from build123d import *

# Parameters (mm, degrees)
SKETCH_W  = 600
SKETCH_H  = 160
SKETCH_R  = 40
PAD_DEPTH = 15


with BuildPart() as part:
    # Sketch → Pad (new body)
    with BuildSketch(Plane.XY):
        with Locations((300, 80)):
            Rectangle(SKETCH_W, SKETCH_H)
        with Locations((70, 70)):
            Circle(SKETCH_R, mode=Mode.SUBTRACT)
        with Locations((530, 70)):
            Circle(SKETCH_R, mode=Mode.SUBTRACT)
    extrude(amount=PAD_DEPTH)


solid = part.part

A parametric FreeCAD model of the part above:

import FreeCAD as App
import Part
import Sketcher
from FreeCAD import Vector


def add_polygon(sketch, points):
    """Adds a closed chain of lines whose ends are joined by coincident constraints."""
    first, n = sketch.GeometryCount, len(points)
    for a, b in zip(points, points[1:] + points[:1]):
        sketch.addGeometry(Part.LineSegment(App.Vector(*a, 0), App.Vector(*b, 0)), False)
    for i in range(n):
        sketch.addConstraint(Sketcher.Constraint("Coincident", first + i, 2, first + (i + 1) % n, 1))

doc = App.newDocument("Part")
body = doc.addObject("PartDesign::Body", "Body")

sketch1 = body.newObject("Sketcher::SketchObject", "Sketch")
sketch1.AttachmentSupport = (doc.getObject("XY_Plane"), [""])
sketch1.MapMode = "FlatFace"
add_polygon(sketch1, [(0, 160), (0, 0), (600, 0), (600, 160)])
sketch1.addGeometry(Part.Circle(Vector(70, 70, 0), Vector(0, 0, 1), 40), False)
sketch1.addGeometry(Part.Circle(Vector(530, 70, 0), Vector(0, 0, 1), 40), False)
sketch1.addConstraint(Sketcher.Constraint("Vertical", 0))
sketch1.addConstraint(Sketcher.Constraint("Horizontal", 1))
sketch1.addConstraint(Sketcher.Constraint("Vertical", 2))
sketch1.addConstraint(Sketcher.Constraint("Horizontal", 3))
sketch1.addConstraint(Sketcher.Constraint("Coincident", 0, 2, -1, 1))
sketch1.addConstraint(Sketcher.Constraint("Equal", 4, 5))
sketch1.addConstraint(Sketcher.Constraint("Horizontal", 4, 3, 5, 3))
sketch1.addConstraint(Sketcher.Constraint("Diameter", 4, 80.0))
sketch1.addConstraint(Sketcher.Constraint("DistanceX", 1, 1, 1, 2, 600.0))
sketch1.addConstraint(Sketcher.Constraint("DistanceY", 0, 2, 0, 1, 160.0))
sketch1.addConstraint(Sketcher.Constraint("DistanceX", -1, 1, 4, 3, 70.0))
sketch1.addConstraint(Sketcher.Constraint("DistanceY", -1, 1, 4, 3, 70.0))
sketch1.addConstraint(Sketcher.Constraint("DistanceX", -1, 1, 5, 3, 530.0))
pad1 = body.newObject("PartDesign::Pad", "Pad")
pad1.Profile = sketch1
pad1.Length = 15

doc.recompute()
